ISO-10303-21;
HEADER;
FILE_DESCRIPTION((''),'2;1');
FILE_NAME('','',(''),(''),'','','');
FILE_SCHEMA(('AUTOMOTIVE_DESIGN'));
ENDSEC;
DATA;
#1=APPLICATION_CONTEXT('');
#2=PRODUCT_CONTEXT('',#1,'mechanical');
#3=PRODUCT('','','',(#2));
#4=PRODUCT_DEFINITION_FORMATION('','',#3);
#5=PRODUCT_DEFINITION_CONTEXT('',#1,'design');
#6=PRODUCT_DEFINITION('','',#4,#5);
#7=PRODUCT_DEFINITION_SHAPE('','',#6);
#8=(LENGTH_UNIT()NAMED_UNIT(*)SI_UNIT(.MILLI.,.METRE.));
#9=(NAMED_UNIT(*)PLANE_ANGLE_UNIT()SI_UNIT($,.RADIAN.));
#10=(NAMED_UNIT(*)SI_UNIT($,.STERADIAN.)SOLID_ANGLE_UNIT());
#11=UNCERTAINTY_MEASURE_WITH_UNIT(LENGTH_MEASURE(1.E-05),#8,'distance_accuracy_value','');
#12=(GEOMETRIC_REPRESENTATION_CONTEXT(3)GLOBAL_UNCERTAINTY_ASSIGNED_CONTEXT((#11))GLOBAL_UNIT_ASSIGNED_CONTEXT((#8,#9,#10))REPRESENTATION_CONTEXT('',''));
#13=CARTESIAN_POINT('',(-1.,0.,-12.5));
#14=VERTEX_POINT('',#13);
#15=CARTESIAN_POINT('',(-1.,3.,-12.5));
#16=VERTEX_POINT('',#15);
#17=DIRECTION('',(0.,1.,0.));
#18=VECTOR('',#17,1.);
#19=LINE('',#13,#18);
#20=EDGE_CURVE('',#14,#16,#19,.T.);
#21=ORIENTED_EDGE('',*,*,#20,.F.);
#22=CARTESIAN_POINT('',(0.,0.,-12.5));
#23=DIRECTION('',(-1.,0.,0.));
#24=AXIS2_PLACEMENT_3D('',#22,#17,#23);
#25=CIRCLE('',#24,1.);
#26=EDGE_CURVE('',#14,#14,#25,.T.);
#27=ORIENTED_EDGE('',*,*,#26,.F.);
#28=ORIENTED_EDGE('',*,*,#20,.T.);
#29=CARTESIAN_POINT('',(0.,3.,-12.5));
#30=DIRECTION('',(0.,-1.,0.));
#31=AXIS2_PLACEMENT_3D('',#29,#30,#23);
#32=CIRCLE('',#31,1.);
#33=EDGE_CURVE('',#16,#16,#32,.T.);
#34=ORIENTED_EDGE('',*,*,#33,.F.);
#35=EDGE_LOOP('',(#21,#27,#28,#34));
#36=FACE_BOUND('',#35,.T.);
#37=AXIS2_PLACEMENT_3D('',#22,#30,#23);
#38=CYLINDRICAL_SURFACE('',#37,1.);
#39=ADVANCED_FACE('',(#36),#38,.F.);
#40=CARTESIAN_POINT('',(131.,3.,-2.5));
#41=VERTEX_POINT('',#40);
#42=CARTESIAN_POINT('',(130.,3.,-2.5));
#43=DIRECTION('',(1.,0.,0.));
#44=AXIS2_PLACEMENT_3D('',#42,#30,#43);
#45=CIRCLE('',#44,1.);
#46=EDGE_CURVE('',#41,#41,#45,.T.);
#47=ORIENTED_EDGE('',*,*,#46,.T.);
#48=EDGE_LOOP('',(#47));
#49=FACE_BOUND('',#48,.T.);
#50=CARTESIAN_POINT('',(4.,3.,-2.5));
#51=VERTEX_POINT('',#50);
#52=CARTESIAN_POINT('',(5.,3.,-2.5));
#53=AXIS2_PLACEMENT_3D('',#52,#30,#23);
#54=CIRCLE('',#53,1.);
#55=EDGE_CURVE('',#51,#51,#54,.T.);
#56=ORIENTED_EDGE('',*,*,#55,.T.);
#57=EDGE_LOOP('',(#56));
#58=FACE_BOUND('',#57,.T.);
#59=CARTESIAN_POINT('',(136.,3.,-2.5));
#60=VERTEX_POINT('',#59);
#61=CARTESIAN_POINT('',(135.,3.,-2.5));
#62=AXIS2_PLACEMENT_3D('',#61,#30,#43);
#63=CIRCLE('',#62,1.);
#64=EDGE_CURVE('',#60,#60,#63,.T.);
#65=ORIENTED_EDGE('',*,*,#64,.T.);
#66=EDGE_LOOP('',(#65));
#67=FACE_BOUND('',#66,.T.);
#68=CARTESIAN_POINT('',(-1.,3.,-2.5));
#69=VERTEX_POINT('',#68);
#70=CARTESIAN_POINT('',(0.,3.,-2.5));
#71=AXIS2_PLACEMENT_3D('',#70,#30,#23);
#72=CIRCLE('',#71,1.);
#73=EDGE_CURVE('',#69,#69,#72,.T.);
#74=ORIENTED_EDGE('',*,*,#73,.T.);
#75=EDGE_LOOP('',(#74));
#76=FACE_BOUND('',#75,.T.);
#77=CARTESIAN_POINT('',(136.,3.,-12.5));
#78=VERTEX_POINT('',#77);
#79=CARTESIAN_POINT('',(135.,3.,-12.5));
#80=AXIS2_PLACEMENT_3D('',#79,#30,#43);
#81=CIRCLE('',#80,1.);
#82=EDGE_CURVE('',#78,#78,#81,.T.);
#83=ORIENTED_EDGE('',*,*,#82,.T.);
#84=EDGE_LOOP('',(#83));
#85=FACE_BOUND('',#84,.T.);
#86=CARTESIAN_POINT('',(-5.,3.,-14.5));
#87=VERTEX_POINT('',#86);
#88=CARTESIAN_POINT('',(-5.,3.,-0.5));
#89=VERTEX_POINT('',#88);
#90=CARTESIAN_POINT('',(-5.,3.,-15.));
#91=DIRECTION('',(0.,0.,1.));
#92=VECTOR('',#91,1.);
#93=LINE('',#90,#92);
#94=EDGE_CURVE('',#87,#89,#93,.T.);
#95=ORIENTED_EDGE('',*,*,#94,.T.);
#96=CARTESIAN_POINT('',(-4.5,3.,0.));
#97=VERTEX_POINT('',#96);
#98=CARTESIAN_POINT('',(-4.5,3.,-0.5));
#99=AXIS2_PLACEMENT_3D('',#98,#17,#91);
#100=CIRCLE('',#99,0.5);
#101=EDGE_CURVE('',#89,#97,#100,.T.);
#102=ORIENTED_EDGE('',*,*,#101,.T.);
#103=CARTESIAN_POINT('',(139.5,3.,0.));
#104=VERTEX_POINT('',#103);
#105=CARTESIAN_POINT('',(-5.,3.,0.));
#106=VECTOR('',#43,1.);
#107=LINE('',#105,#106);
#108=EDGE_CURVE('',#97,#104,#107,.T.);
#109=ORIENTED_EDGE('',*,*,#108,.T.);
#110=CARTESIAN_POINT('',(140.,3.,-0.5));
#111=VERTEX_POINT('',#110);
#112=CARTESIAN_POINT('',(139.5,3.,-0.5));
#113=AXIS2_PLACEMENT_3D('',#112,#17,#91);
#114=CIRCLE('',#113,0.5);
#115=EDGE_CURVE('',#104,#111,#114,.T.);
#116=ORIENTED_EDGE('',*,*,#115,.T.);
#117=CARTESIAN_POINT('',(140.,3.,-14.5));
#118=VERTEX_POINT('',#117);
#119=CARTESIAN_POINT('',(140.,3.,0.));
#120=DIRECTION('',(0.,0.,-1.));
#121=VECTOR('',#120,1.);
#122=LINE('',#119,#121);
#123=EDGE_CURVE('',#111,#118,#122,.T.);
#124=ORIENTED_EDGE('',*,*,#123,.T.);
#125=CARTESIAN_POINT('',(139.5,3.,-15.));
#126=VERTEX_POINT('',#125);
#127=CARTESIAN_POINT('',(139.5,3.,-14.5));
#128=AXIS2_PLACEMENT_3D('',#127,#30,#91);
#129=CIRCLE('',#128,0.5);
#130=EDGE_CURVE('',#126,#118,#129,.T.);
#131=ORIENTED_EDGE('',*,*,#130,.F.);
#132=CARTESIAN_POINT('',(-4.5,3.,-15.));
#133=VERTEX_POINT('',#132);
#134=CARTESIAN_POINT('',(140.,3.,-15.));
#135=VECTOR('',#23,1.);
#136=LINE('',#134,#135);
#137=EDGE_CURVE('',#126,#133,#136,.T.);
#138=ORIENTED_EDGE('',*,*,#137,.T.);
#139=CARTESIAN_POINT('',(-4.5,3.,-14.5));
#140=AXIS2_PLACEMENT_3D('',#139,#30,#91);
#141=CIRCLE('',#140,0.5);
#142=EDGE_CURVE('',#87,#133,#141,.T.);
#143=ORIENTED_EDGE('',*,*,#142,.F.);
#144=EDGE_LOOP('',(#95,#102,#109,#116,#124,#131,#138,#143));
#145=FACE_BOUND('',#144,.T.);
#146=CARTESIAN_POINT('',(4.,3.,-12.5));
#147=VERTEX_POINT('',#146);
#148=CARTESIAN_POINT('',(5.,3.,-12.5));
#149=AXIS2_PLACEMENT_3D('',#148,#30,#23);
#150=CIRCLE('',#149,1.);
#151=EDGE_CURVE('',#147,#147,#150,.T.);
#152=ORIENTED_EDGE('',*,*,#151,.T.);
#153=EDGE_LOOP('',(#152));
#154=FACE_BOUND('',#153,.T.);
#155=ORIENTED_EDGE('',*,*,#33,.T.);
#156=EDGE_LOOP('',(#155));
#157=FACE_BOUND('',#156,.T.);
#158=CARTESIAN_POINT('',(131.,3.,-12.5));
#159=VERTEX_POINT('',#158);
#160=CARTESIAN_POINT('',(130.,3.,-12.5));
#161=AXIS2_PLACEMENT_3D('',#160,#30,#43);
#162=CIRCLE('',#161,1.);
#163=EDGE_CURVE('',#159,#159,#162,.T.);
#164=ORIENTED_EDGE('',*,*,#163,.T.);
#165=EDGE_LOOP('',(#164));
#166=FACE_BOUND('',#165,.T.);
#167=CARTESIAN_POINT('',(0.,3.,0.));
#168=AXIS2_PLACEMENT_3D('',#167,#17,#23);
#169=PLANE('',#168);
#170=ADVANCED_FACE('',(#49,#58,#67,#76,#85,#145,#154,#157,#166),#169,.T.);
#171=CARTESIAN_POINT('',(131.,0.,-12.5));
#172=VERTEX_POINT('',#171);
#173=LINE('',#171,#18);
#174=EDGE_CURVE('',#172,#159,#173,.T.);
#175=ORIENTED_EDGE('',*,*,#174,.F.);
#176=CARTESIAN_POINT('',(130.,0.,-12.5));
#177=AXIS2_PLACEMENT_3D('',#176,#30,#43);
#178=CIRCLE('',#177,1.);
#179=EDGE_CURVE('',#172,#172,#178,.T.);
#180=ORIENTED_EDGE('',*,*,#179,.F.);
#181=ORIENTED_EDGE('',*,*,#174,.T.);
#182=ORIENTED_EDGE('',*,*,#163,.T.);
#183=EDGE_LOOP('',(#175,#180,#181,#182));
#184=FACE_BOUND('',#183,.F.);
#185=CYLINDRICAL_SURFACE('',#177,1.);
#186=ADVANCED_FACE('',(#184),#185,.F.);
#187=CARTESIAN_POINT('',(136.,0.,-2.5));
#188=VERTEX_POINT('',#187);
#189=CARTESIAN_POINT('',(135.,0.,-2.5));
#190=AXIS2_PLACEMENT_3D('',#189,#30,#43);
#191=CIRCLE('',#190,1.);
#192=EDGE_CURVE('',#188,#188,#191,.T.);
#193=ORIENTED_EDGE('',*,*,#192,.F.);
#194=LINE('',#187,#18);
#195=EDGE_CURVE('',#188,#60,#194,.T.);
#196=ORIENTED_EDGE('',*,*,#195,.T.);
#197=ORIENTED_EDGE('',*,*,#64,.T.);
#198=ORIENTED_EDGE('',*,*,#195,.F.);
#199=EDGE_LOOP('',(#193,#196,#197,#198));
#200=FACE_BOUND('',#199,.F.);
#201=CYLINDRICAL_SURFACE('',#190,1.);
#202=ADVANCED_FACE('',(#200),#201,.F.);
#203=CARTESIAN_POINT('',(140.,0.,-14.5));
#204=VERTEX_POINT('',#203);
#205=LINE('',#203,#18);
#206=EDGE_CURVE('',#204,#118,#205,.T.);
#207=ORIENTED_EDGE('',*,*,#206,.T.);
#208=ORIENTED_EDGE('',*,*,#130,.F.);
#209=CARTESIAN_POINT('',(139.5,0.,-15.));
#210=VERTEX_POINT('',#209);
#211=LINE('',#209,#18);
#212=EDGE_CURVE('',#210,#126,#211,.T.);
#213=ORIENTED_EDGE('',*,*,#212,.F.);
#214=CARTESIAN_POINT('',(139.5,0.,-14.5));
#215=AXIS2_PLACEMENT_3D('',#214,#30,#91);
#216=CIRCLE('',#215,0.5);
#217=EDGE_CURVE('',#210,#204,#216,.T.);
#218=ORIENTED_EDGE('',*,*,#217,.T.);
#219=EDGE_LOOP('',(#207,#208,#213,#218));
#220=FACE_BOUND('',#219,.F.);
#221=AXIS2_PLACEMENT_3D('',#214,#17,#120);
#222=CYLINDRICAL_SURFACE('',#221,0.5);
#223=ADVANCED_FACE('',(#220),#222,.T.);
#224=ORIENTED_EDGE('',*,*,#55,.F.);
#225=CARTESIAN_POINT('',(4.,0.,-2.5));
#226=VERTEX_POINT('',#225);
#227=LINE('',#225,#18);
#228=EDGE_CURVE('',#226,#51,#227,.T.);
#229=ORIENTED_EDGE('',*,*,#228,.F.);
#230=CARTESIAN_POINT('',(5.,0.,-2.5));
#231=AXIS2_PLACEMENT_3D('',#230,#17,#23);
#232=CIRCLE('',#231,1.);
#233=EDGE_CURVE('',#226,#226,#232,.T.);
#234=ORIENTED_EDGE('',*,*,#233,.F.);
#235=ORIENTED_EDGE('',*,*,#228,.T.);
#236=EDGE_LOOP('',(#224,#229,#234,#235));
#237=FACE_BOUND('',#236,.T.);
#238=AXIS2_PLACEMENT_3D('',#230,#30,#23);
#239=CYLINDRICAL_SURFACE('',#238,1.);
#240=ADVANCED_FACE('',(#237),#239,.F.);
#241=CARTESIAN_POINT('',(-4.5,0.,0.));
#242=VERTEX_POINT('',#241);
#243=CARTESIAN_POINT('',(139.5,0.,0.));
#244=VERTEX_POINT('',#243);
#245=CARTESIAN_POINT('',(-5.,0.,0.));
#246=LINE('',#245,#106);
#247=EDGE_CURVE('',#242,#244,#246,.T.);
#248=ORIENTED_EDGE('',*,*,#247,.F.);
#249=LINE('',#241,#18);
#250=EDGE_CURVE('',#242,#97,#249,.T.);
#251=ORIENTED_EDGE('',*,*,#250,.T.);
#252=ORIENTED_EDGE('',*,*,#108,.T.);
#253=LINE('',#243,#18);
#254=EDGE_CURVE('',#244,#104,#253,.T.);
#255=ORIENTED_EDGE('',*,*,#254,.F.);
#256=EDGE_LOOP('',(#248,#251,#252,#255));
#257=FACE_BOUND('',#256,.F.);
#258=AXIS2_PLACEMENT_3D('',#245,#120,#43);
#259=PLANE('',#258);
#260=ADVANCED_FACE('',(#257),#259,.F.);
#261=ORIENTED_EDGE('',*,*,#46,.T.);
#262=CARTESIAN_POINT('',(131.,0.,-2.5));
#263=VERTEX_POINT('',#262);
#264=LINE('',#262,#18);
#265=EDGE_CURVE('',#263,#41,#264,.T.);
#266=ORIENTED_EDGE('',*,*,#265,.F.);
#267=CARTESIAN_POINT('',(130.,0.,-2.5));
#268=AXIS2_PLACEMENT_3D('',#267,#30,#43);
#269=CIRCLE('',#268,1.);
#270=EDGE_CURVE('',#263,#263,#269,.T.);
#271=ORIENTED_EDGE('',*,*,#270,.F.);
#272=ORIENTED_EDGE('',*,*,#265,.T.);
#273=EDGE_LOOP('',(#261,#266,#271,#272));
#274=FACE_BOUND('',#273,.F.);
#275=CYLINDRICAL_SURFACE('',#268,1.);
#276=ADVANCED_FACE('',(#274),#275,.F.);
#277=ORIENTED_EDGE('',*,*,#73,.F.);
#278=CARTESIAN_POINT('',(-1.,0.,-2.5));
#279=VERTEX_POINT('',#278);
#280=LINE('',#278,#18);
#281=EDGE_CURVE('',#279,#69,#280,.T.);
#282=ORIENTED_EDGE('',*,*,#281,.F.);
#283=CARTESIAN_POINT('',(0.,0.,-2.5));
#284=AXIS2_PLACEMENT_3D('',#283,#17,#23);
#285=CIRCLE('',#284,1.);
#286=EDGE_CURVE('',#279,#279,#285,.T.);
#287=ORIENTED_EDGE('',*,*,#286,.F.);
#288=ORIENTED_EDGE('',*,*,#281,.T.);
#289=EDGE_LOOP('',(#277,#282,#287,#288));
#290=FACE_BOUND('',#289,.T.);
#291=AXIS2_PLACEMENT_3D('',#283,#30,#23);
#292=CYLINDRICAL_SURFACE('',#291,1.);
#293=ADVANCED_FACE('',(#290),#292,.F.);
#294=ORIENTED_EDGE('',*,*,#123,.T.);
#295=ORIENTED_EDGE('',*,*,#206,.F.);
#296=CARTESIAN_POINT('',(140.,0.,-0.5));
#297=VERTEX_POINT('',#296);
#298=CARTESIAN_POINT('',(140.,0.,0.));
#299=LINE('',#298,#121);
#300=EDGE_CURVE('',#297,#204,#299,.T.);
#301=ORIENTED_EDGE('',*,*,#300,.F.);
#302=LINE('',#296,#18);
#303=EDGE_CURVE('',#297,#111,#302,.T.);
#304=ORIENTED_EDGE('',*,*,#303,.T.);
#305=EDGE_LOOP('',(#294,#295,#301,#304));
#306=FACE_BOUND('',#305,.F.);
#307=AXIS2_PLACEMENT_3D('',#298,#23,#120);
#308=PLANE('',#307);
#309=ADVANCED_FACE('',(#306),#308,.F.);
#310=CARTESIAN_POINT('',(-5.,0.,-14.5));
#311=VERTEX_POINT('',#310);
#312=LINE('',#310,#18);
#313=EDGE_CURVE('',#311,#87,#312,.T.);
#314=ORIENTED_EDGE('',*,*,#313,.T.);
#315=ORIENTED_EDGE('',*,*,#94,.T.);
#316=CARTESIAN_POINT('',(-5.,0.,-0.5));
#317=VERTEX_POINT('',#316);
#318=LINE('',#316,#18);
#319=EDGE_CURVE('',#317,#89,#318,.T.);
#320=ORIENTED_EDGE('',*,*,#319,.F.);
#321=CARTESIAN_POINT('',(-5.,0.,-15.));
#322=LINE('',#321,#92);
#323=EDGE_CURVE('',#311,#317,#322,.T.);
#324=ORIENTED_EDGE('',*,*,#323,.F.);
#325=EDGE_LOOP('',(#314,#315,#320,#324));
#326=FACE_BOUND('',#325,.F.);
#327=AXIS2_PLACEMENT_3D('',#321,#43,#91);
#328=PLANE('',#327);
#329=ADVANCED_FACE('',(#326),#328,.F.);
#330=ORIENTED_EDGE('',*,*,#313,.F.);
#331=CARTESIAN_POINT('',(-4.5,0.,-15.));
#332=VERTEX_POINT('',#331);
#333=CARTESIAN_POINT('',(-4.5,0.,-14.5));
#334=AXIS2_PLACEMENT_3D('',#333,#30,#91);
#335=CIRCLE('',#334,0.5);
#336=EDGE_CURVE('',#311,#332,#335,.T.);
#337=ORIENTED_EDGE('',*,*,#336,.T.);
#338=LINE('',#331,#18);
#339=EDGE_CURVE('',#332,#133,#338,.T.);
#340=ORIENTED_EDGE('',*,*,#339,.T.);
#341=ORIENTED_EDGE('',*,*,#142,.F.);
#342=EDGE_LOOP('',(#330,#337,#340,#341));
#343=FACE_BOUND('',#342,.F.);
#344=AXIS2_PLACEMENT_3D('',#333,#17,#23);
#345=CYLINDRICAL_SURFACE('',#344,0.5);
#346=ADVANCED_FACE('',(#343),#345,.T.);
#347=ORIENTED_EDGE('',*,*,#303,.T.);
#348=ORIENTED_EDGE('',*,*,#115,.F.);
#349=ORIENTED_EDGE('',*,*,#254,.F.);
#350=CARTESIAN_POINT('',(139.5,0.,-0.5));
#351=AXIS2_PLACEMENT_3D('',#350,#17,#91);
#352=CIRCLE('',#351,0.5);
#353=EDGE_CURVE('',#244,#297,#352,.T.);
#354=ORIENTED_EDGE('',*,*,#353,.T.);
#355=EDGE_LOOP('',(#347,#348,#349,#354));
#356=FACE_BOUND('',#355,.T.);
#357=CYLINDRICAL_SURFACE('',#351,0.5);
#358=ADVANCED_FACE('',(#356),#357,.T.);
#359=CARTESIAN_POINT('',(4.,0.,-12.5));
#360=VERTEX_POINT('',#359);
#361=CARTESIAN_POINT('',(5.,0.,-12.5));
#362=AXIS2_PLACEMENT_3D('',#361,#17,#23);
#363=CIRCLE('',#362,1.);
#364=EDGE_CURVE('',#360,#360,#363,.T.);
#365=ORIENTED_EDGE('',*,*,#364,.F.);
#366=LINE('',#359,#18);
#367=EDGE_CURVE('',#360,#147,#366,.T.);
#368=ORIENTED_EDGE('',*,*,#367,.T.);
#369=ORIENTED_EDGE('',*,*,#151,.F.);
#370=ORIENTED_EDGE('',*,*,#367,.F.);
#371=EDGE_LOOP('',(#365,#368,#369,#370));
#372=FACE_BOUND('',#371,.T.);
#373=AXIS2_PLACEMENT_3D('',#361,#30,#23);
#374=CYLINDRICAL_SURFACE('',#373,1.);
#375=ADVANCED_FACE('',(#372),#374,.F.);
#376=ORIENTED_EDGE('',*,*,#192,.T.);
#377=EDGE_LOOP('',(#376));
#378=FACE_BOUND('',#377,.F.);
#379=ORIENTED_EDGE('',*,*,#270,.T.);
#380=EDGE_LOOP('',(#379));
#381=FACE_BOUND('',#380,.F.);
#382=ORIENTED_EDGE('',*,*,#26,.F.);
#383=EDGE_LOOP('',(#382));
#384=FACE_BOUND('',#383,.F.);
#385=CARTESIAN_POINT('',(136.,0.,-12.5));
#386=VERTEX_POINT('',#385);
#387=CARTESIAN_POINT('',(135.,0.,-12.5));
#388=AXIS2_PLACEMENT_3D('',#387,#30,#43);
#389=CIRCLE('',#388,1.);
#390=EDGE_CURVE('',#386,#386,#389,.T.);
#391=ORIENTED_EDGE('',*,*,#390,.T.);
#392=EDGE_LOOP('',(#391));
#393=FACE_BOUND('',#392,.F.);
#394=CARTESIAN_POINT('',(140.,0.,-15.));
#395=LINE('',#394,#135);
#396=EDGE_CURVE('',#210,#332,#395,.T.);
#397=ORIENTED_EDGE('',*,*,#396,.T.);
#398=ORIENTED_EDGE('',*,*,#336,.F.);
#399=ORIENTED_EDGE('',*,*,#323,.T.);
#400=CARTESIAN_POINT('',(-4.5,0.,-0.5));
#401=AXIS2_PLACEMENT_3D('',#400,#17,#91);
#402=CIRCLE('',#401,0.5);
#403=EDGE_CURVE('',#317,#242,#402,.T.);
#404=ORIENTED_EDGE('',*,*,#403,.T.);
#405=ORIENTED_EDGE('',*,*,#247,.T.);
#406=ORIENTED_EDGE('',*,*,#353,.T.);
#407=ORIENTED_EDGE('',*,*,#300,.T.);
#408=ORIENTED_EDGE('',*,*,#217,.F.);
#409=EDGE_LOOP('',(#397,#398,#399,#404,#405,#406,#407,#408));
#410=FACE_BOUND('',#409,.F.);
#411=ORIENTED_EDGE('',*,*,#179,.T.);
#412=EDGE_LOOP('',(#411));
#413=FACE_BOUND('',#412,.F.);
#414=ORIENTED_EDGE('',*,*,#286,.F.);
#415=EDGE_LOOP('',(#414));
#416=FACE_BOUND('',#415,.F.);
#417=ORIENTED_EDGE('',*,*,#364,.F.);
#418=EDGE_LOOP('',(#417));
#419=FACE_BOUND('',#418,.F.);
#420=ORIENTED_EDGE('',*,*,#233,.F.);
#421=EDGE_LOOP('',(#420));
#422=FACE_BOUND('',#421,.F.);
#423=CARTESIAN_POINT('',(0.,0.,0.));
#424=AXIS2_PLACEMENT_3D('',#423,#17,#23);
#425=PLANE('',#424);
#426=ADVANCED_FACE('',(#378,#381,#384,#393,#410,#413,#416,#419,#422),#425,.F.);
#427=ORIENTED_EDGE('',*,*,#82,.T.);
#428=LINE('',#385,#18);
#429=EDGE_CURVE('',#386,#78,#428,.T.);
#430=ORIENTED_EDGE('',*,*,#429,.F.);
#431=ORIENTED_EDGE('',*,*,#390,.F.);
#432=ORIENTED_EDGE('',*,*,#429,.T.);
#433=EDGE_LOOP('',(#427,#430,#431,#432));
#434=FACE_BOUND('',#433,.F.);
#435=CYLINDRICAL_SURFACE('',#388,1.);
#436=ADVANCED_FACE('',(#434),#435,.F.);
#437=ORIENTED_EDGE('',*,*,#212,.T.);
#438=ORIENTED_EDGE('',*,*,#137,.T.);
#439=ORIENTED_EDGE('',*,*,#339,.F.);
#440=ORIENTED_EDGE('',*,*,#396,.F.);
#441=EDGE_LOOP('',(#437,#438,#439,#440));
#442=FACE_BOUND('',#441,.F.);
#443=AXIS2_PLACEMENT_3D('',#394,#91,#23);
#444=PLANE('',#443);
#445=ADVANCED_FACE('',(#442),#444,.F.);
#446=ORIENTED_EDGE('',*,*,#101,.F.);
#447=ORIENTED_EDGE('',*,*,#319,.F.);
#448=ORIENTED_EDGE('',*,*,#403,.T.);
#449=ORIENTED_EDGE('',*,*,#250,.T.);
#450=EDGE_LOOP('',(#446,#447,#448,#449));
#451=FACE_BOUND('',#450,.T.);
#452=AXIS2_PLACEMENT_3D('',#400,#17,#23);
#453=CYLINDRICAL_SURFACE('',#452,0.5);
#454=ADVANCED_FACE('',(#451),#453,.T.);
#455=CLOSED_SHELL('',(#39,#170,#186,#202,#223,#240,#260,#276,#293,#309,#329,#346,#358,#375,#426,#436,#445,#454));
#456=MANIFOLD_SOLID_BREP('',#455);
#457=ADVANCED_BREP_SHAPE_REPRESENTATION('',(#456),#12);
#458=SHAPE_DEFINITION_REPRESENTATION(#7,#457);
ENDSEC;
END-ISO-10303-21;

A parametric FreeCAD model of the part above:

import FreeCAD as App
import Part
import Sketcher

V = App.Vector


def edges_at(feature, points):
    """Names of the edges that pass closest to the given points."""
    edges = feature.Shape.Edges
    near = lambda p: min(range(len(edges)), key=lambda i: edges[i].distToShape(Part.Vertex(*p))[0])
    return sorted({f"Edge{near(p) + 1}" for p in points})

doc = App.newDocument("Part")
body = doc.addObject("PartDesign::Body", "Body")

sketch1 = doc.addObject("Sketcher::SketchObject", "Sketch")
body.addObject(sketch1)
sketch1.AttachmentSupport = (doc.XZ_Plane, [""])
sketch1.MapMode = "FlatFace"
sketch1.addGeometry(Part.LineSegment(V(-5, -15, 0), V(-5, 0, 0)), False)
sketch1.addGeometry(Part.LineSegment(V(-5, 0, 0), V(140, 0, 0)), False)
sketch1.addGeometry(Part.LineSegment(V(140, 0, 0), V(140, -15, 0)), False)
sketch1.addGeometry(Part.LineSegment(V(140, -15, 0), V(-5, -15, 0)), False)
sketch1.addConstraint(Sketcher.Constraint("Coincident", 0, 2, 1, 1))
sketch1.addConstraint(Sketcher.Constraint("Coincident", 1, 2, 2, 1))
sketch1.addConstraint(Sketcher.Constraint("Coincident", 2, 2, 3, 1))
sketch1.addConstraint(Sketcher.Constraint("Coincident", 3, 2, 0, 1))
sketch1.addConstraint(Sketcher.Constraint("Vertical", 0))
sketch1.addConstraint(Sketcher.Constraint("Horizontal", 1))
sketch1.addConstraint(Sketcher.Constraint("Vertical", 2))
sketch1.addConstraint(Sketcher.Constraint("Horizontal", 3))
sketch1.addConstraint(Sketcher.Constraint("PointOnObject", 0, 2, -1))
sketch1.addConstraint(Sketcher.Constraint("DistanceX", 1, 1, 1, 2, 145.0))
sketch1.addConstraint(Sketcher.Constraint("DistanceY", 0, 1, 0, 2, 15.0))
sketch1.addConstraint(Sketcher.Constraint("DistanceX", 0, 2, -1, 1, 5.0))
pad1 = doc.addObject("PartDesign::Pad", "Pad")
body.addObject(pad1)
pad1.Profile = sketch1
pad1.Length = 3
pad1.Reversed = True

sketch2 = doc.addObject("Sketcher::SketchObject", "Sketch001")
body.addObject(sketch2)
sketch2.AttachmentSupport = (doc.XZ_Plane, [""])
sketch2.MapMode = "FlatFace"
sketch2.addGeometry(Part.Circle(V(135, -2.5, 0), V(0, 0, 1), 1), False)
sketch2.addGeometry(Part.Circle(V(135, -12.5, 0), V(0, 0, 1), 1), False)
sketch2.addGeometry(Part.Circle(V(130, -2.5, 0), V(0, 0, 1), 1), False)
sketch2.addGeometry(Part.Circle(V(130, -12.5, 0), V(0, 0, 1), 1), False)
sketch2.addConstraint(Sketcher.Constraint("Equal", 0, 1))
sketch2.addConstraint(Sketcher.Constraint("Equal", 1, 2))
sketch2.addConstraint(Sketcher.Constraint("Equal", 2, 3))
sketch2.addConstraint(Sketcher.Constraint("Horizontal", 0, 3, 2, 3))
sketch2.addConstraint(Sketcher.Constraint("Horizontal", 1, 3, 3, 3))
sketch2.addConstraint(Sketcher.Constraint("Vertical", 0, 3, 1, 3))
sketch2.addConstraint(Sketcher.Constraint("Vertical", 2, 3, 3, 3))
sketch2.addConstraint(Sketcher.Constraint("Diameter", 0, 2.0))
sketch2.addConstraint(Sketcher.Constraint("DistanceY", 1, 3, 0, 3, 10.0))
sketch2.addConstraint(Sketcher.Constraint("DistanceX", 2, 3, 0, 3, 5.0))
sketch2.addConstraint(Sketcher.Constraint("DistanceX", -1, 1, 0, 3, 135.0))
sketch2.addConstraint(Sketcher.Constraint("DistanceY", 0, 3, -1, 1, 2.5))
pocket1 = doc.addObject("PartDesign::Pocket", "Pocket")
body.addObject(pocket1)
pocket1.Profile = sketch2
pocket1.Length = 10
doc.recompute()

datumplane = doc.addObject("PartDesign::Plane", "DatumPlane")
body.addObject(datumplane)
datumplane.AttachmentSupport = (doc.YZ_Plane, [""])
datumplane.MapMode = "FlatFace"
datumplane.AttachmentOffset = App.Placement(V(0, 0, 67.5), App.Rotation())
mirrored = doc.addObject("PartDesign::Mirrored", "Mirrored")
body.addObject(mirrored)
mirrored.Originals = [pocket1]
mirrored.MirrorPlane = (datumplane, [""])
body.Tip = mirrored
doc.recompute()

fillet = doc.addObject("PartDesign::Fillet", "Fillet")
body.addObject(fillet)
fillet.Base = (mirrored, edges_at(mirrored, [
    (-5, 1.5, 0),
    (140, 1.5, 0),
    (140, 1.5, -15),
    (-5, 1.5, -15),
]))
fillet.Radius = 0.5

doc.recompute()
